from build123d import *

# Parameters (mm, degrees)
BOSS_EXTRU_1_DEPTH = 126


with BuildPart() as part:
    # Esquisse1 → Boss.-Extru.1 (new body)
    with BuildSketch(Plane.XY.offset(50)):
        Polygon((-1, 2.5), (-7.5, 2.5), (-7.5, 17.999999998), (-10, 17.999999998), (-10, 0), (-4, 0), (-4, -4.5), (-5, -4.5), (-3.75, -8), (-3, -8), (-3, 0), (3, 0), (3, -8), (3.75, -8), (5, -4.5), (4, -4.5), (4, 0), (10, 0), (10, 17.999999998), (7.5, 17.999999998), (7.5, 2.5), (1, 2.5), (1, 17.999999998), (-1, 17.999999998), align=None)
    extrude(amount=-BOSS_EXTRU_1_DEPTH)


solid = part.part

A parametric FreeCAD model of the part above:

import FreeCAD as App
import Part
import Sketcher
from FreeCAD import Vector

doc = App.newDocument("Part")
body = doc.addObject("PartDesign::Body", "Body")

sketch1 = doc.addObject("Sketcher::SketchObject", "Sketch")
body.addObject(sketch1)
sketch1.AttachmentSupport = (doc.XY_Plane, [""])
sketch1.MapMode = "FlatFace"
sketch1.AttachmentOffset = App.Placement(Vector(0, 0, 50), App.Rotation())
sketch1.addGeometry([
    Part.LineSegment(Vector(-1, 2.5, 0), Vector(-7.5, 2.5, 0)),
    Part.LineSegment(Vector(-7.5, 2.5, 0), Vector(-7.5, 18, 0)),
    Part.LineSegment(Vector(-7.5, 18, 0), Vector(-10, 18, 0)),
    Part.LineSegment(Vector(-10, 18, 0), Vector(-10, 0, 0)),
    Part.LineSegment(Vector(-10, 0, 0), Vector(-4, 0, 0)),
    Part.LineSegment(Vector(-4, 0, 0), Vector(-4, -4.5, 0)),
    Part.LineSegment(Vector(-4, -4.5, 0), Vector(-5, -4.5, 0)),
    Part.LineSegment(Vector(-5, -4.5, 0), Vector(-3.75, -8, 0)),
    Part.LineSegment(Vector(-3.75, -8, 0), Vector(-3, -8, 0)),
    Part.LineSegment(Vector(-3, -8, 0), Vector(-3, 0, 0)),
    Part.LineSegment(Vector(-3, 0, 0), Vector(3, 0, 0)),
    Part.LineSegment(Vector(3, 0, 0), Vector(3, -8, 0)),
    Part.LineSegment(Vector(3, -8, 0), Vector(3.75, -8, 0)),
    Part.LineSegment(Vector(3.75, -8, 0), Vector(5, -4.5, 0)),
    Part.LineSegment(Vector(5, -4.5, 0), Vector(4, -4.5, 0)),
    Part.LineSegment(Vector(4, -4.5, 0), Vector(4, 0, 0)),
    Part.LineSegment(Vector(4, 0, 0), Vector(10, 0, 0)),
    Part.LineSegment(Vector(10, 0, 0), Vector(10, 18, 0)),
    Part.LineSegment(Vector(10, 18, 0), Vector(7.5, 18, 0)),
    Part.LineSegment(Vector(7.5, 18, 0), Vector(7.5, 2.5, 0)),
    Part.LineSegment(Vector(7.5, 2.5, 0), Vector(1, 2.5, 0)),
    Part.LineSegment(Vector(1, 2.5, 0), Vector(1, 18, 0)),
    Part.LineSegment(Vector(1, 18, 0), Vector(-1, 18, 0)),
    Part.LineSegment(Vector(-1, 18, 0), Vector(-1, 2.5, 0)),
], False)
sketch1.addConstraint([
    Sketcher.Constraint("Coincident", 0, 2, 1, 1),
    Sketcher.Constraint("Coincident", 1, 2, 2, 1),
    Sketcher.Constraint("Coincident", 2, 2, 3, 1),
    Sketcher.Constraint("Coincident", 3, 2, 4, 1),
    Sketcher.Constraint("Coincident", 4, 2, 5, 1),
    Sketcher.Constraint("Coincident", 5, 2, 6, 1),
    Sketcher.Constraint("Coincident", 6, 2, 7, 1),
    Sketcher.Constraint("Coincident", 7, 2, 8, 1),
    Sketcher.Constraint("Coincident", 8, 2, 9, 1),
    Sketcher.Constraint("Coincident", 9, 2, 10, 1),
    Sketcher.Constraint("Coincident", 10, 2, 11, 1),
    Sketcher.Constraint("Coincident", 11, 2, 12, 1),
    Sketcher.Constraint("Coincident", 12, 2, 13, 1),
    Sketcher.Constraint("Coincident", 13, 2, 14, 1),
    Sketcher.Constraint("Coincident", 14, 2, 15, 1),
    Sketcher.Constraint("Coincident", 15, 2, 16, 1),
    Sketcher.Constraint("Coincident", 16, 2, 17, 1),
    Sketcher.Constraint("Coincident", 17, 2, 18, 1),
    Sketcher.Constraint("Coincident", 18, 2, 19, 1),
    Sketcher.Constraint("Coincident", 19, 2, 20, 1),
    Sketcher.Constraint("Coincident", 20, 2, 21, 1),
    Sketcher.Constraint("Coincident", 21, 2, 22, 1),
    Sketcher.Constraint("Coincident", 22, 2, 23, 1),
    Sketcher.Constraint("Coincident", 23, 2, 0, 1),
    Sketcher.Constraint("Horizontal", 0),
    Sketcher.Constraint("Vertical", 1),
    Sketcher.Constraint("Horizontal", 2),
    Sketcher.Constraint("Vertical", 3),
    Sketcher.Constraint("Horizontal", 4),
    Sketcher.Constraint("Vertical", 5),
    Sketcher.Constraint("Horizontal", 6),
    Sketcher.Constraint("Horizontal", 8),
    Sketcher.Constraint("Vertical", 9),
    Sketcher.Constraint("Horizontal", 10),
    Sketcher.Constraint("Vertical", 11),
    Sketcher.Constraint("Horizontal", 12),
    Sketcher.Constraint("Horizontal", 14),
    Sketcher.Constraint("Vertical", 15),
    Sketcher.Constraint("Horizontal", 16),
    Sketcher.Constraint("Vertical", 17),
    Sketcher.Constraint("Horizontal", 18),
    Sketcher.Constraint("Vertical", 19),
    Sketcher.Constraint("Horizontal", 20),
    Sketcher.Constraint("Vertical", 21),
    Sketcher.Constraint("Horizontal", 22),
    Sketcher.Constraint("Vertical", 23),
    Sketcher.Constraint("Symmetric", 9, 2, 10, 2, -1, 1),
    Sketcher.Constraint("Symmetric", 4, 2, 15, 2, -1, 1),
    Sketcher.Constraint("Symmetric", 7, 2, 12, 2, -2),
    Sketcher.Constraint("Symmetric", 6, 2, 13, 2, -2),
    Sketcher.Constraint("Symmetric", 3, 2, 16, 2, -2),
    Sketcher.Constraint("Symmetric", 1, 2, 18, 2, -2),
    Sketcher.Constraint("Symmetric", 20, 2, 23, 2, -2),
    Sketcher.Constraint("Horizontal", 18, 2, 21, 2),
    Sketcher.Constraint("Equal", 4, 10),
    Sketcher.Constraint("DistanceX", 4, 1, 4, 2, 6.0),
    Sketcher.Constraint("DistanceX", 6, 2, 6, 1, 1.0),
    Sketcher.Constraint("DistanceX", 22, 2, 22, 1, 2.0),
    Sketcher.Constraint("DistanceY", 3, 2, 3, 1, 18.0),
    Sketcher.Constraint("DistanceY", 9, 1, 9, 2, 8.0),
    Sketcher.Constraint("DistanceX", 0, 2, 0, 1, 6.5),
    Sketcher.Constraint("DistanceX", 2, 2, 2, 1, 2.5),
    Sketcher.Constraint("DistanceY", 1, 1, 1, 2, 15.5),
    Sketcher.Constraint("DistanceY", 5, 2, 5, 1, 4.5),
    Sketcher.Constraint("DistanceX", 8, 1, 8, 2, 0.75),
])
pad1 = doc.addObject("PartDesign::Pad", "Pad")
body.addObject(pad1)
pad1.Profile = sketch1
pad1.Length = 126
pad1.Reversed = True

doc.recompute()
